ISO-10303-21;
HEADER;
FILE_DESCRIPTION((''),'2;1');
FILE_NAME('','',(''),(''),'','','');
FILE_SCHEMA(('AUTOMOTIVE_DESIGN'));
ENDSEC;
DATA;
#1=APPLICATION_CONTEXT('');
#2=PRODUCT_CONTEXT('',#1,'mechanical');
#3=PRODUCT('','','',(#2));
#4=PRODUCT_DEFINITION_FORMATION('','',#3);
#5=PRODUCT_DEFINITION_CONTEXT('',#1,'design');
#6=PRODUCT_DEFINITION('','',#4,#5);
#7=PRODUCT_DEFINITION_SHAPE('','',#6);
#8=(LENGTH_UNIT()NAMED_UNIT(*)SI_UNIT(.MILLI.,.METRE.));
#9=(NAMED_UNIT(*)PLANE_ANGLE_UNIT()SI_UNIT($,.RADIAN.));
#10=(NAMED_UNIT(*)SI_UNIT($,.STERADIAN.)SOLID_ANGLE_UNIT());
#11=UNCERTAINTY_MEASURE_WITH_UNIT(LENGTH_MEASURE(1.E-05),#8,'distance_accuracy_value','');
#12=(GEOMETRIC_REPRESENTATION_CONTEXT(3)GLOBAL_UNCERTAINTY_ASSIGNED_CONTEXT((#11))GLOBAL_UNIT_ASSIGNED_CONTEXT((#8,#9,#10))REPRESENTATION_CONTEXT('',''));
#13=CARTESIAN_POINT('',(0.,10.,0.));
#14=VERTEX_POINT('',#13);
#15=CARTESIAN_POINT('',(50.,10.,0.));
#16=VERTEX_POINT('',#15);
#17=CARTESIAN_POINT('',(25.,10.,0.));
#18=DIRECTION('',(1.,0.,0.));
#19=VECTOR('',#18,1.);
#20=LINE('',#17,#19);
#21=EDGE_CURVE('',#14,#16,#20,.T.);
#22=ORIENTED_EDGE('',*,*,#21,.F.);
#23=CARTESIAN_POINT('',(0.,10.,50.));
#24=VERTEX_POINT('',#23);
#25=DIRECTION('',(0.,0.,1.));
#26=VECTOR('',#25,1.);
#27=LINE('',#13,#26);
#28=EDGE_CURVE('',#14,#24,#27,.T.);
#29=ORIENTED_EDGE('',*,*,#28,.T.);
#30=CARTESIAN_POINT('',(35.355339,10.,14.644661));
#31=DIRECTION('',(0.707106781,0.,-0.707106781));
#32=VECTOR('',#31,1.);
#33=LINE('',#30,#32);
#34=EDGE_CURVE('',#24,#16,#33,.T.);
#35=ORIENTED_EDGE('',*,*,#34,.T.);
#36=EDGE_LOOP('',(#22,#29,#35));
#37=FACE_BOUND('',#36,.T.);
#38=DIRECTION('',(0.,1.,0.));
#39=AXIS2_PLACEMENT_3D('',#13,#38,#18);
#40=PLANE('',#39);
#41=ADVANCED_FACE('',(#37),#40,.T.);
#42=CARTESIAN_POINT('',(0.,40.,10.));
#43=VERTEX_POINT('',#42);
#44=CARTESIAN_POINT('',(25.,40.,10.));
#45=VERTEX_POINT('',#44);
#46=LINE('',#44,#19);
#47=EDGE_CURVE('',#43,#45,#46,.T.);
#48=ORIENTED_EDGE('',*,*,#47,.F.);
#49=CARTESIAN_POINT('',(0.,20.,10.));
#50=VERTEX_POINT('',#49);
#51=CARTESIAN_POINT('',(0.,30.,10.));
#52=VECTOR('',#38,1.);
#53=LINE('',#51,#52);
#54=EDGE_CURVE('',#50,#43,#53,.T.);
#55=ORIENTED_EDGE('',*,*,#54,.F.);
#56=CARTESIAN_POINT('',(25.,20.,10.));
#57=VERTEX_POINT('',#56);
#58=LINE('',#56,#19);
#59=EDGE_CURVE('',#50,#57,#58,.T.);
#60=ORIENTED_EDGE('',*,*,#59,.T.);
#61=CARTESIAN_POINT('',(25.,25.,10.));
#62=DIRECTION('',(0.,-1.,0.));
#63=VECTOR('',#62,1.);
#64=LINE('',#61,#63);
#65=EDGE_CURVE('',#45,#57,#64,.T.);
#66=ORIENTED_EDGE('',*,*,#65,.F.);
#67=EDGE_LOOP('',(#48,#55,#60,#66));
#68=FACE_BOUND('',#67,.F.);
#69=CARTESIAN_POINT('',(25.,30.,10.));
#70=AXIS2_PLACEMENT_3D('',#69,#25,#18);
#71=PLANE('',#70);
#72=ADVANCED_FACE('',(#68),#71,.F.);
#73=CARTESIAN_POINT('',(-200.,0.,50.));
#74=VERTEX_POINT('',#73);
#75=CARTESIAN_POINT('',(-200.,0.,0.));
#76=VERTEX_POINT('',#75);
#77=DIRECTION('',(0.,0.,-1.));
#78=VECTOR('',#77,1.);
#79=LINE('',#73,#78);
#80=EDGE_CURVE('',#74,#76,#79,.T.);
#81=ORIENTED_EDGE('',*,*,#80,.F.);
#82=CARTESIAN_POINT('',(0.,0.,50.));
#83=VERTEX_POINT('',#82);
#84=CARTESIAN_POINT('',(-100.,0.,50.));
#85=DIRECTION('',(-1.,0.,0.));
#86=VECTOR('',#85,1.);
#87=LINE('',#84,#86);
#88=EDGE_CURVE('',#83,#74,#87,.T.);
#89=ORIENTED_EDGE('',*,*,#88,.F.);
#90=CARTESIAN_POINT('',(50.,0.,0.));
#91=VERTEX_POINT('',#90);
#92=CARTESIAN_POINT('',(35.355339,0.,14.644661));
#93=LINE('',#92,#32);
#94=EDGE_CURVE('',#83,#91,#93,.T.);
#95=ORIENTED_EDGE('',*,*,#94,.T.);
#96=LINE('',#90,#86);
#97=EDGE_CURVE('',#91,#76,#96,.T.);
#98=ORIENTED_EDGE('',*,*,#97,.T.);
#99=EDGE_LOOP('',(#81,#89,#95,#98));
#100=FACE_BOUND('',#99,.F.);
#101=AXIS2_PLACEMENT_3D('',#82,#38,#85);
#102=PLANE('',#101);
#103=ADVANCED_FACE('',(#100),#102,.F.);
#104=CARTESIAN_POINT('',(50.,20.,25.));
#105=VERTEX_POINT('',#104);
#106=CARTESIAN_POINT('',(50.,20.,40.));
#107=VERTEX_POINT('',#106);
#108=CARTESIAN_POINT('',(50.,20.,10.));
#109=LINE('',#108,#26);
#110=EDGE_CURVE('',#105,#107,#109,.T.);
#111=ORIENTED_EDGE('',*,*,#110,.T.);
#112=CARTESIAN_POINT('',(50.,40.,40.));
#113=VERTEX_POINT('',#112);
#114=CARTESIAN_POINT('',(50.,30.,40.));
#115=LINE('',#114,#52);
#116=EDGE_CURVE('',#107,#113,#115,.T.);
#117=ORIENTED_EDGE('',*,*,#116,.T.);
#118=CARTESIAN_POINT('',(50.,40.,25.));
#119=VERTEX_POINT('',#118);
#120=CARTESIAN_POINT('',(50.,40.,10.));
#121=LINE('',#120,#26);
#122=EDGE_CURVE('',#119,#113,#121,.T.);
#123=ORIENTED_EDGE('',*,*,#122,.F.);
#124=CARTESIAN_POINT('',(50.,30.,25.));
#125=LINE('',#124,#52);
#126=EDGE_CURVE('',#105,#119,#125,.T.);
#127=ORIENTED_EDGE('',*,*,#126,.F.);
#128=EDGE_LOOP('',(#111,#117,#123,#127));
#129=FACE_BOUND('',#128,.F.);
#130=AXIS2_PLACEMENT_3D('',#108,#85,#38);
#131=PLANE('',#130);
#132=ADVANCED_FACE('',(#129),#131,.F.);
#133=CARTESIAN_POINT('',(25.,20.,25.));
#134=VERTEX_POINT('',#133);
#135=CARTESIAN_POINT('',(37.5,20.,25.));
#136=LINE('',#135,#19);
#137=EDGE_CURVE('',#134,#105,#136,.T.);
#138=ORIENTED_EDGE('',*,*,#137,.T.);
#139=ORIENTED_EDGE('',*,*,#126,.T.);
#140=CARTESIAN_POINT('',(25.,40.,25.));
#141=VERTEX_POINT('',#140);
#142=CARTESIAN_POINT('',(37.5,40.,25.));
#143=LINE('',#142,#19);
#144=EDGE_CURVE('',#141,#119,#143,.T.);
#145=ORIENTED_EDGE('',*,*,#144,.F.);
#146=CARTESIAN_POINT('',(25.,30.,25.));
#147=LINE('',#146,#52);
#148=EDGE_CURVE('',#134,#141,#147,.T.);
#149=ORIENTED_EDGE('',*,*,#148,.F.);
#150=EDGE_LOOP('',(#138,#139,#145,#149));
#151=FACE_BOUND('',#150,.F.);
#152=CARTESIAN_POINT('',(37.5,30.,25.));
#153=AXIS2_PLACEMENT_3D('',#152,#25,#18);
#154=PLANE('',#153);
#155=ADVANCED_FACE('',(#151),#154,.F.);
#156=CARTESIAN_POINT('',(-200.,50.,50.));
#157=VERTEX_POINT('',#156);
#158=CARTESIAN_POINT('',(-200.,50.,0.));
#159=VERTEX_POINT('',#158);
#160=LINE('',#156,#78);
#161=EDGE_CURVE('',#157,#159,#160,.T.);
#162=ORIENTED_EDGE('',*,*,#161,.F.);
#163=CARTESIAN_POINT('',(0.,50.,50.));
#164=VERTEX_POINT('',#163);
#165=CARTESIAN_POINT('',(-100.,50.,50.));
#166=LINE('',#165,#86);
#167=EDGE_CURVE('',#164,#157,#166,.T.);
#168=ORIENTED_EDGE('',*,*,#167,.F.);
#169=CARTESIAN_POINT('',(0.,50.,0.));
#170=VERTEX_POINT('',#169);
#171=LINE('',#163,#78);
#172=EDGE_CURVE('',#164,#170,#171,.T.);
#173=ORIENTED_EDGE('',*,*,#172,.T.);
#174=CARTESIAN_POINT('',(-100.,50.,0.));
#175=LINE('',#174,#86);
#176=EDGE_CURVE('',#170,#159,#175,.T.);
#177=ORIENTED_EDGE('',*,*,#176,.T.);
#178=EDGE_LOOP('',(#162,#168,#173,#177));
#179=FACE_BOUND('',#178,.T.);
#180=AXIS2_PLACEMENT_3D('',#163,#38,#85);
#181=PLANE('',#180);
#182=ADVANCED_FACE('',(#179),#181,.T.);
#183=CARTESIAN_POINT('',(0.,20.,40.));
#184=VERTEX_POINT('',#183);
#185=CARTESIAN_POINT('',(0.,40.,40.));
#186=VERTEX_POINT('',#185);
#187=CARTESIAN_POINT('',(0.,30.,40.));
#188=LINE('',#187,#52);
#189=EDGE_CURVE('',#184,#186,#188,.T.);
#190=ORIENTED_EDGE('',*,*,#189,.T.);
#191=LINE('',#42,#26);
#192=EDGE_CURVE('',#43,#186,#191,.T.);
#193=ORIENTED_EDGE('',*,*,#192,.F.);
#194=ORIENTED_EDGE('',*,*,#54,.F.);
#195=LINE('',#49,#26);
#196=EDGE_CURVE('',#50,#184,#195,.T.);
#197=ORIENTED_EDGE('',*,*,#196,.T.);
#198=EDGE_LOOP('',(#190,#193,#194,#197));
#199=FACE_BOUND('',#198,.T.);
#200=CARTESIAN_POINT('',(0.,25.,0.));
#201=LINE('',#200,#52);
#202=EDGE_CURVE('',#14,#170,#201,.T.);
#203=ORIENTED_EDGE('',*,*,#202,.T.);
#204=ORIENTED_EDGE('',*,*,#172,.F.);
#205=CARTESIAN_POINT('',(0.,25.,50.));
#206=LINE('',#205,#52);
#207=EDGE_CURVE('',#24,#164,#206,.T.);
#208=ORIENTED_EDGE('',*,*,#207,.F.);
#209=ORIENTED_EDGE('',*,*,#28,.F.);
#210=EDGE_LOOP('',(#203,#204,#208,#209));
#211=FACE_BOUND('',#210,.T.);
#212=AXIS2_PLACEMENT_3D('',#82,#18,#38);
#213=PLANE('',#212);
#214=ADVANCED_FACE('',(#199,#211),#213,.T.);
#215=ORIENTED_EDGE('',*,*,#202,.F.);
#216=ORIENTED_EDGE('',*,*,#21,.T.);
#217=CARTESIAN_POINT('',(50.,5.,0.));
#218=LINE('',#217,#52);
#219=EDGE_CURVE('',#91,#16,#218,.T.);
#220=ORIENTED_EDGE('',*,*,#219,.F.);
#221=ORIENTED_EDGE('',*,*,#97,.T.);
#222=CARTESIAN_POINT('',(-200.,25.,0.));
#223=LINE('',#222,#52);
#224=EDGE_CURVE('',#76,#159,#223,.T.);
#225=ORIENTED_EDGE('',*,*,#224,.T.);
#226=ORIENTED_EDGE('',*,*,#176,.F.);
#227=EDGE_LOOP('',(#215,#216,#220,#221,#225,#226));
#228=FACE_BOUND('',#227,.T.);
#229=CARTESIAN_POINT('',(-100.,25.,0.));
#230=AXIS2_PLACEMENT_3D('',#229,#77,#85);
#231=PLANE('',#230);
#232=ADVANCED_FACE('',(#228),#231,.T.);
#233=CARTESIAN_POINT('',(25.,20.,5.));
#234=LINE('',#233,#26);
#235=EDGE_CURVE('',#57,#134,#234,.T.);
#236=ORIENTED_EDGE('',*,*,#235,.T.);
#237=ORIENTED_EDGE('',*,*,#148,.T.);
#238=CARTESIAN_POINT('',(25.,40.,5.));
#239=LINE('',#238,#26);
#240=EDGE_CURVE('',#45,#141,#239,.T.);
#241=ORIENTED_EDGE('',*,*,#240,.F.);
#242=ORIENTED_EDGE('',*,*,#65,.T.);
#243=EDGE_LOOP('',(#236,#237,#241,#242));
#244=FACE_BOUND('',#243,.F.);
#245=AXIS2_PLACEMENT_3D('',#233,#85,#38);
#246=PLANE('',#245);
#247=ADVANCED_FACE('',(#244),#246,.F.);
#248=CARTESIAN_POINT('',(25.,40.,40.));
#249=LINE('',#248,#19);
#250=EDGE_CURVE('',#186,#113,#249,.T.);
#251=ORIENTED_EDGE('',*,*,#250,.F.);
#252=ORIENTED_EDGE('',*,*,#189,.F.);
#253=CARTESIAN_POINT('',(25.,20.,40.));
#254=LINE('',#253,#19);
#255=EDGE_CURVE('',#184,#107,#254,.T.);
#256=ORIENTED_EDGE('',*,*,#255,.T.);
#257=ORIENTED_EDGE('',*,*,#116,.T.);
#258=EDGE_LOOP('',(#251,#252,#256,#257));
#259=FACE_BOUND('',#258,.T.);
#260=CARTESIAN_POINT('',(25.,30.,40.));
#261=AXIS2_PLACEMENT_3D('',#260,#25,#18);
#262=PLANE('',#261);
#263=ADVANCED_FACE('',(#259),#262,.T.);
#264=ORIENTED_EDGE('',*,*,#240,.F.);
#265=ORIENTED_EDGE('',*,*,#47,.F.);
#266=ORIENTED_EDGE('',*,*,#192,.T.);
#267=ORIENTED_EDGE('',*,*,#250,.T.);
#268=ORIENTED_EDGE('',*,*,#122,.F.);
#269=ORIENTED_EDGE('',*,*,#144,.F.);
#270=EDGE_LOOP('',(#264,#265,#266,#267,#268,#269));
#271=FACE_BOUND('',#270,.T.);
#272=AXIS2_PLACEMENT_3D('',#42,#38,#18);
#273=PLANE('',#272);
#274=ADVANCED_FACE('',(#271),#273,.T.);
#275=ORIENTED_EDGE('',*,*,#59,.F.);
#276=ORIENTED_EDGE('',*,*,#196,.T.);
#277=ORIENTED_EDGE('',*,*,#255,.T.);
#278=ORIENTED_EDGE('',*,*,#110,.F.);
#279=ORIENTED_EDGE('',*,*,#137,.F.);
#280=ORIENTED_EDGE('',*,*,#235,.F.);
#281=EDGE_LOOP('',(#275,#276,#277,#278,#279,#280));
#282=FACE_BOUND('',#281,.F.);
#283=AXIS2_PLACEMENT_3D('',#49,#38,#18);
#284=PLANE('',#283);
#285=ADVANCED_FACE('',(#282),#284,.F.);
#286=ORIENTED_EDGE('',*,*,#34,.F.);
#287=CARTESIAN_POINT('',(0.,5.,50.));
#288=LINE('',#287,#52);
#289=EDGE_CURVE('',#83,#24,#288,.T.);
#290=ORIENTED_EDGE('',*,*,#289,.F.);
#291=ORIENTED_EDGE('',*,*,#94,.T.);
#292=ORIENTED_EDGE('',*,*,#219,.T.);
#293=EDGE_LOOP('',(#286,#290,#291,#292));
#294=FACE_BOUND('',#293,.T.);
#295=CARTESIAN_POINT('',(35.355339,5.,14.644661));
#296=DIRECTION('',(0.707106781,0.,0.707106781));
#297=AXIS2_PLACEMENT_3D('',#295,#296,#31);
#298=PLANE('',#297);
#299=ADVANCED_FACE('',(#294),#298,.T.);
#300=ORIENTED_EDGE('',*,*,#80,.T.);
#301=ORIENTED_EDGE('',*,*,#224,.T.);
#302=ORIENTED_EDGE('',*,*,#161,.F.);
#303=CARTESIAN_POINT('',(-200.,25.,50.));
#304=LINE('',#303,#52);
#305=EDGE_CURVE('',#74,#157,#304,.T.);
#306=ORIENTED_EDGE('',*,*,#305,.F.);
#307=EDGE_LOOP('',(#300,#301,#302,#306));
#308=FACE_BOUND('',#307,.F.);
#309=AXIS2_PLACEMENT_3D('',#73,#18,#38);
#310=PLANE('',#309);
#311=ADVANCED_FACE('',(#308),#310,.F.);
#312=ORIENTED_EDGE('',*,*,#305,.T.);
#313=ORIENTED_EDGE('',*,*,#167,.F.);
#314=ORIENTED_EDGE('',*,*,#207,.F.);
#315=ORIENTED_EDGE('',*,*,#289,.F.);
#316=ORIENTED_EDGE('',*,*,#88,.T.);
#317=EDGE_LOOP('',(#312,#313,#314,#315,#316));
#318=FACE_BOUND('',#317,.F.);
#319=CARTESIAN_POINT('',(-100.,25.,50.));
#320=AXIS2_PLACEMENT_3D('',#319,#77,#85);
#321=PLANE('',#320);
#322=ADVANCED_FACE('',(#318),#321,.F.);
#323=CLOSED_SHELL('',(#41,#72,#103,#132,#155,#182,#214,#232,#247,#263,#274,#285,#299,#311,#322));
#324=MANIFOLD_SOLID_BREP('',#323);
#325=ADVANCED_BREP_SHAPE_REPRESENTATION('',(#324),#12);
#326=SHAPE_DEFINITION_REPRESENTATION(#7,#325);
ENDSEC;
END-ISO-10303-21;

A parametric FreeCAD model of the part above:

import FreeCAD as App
import Part
import Sketcher
Q = App.Units.Quantity

doc = App.newDocument("Part")
body = doc.addObject("PartDesign::Body", "Body")

sketch1 = doc.addObject("Sketcher::SketchObject", "Sketch")
body.addObject(sketch1)
sketch1.AttachmentSupport = (doc.XY_Plane, [""])
sketch1.MapMode = "FlatFace"
sketch1.AttachmentOffset = App.Placement(App.Vector(0, 0, 5), App.Rotation())
sketch1.addGeometry(Part.LineSegment(App.Vector(25, 40, 0), App.Vector(25, 20, 0)), False)
sketch1.addGeometry(Part.LineSegment(App.Vector(25, 20, 0), App.Vector(50, 20, 0)), False)
sketch1.addGeometry(Part.LineSegment(App.Vector(50, 20, 0), App.Vector(50, 40, 0)), False)
sketch1.addGeometry(Part.LineSegment(App.Vector(50, 40, 0), App.Vector(25, 40, 0)), False)
sketch1.addConstraint(Sketcher.Constraint("Coincident", 0, 2, 1, 1))
sketch1.addConstraint(Sketcher.Constraint("Coincident", 1, 2, 2, 1))
sketch1.addConstraint(Sketcher.Constraint("Coincident", 2, 2, 3, 1))
sketch1.addConstraint(Sketcher.Constraint("Coincident", 3, 2, 0, 1))
sketch1.addConstraint(Sketcher.Constraint("Vertical", 0))
sketch1.addConstraint(Sketcher.Constraint("Horizontal", 1))
sketch1.addConstraint(Sketcher.Constraint("Vertical", 2))
sketch1.addConstraint(Sketcher.Constraint("Horizontal", 3))
sketch1.addConstraint(Sketcher.Constraint("DistanceX", 1, 1, 1, 2, Q("25 mm")))
sketch1.addConstraint(Sketcher.Constraint("DistanceY", 0, 2, 0, 1, Q("20 mm")))
sketch1.addConstraint(Sketcher.Constraint("DistanceX", -1, 1, 0, 2, Q("25 mm")))
sketch1.addConstraint(Sketcher.Constraint("DistanceY", -1, 1, 0, 2, Q("20 mm")))
pad1 = doc.addObject("PartDesign::Pad", "Pad")
body.addObject(pad1)
pad1.Profile = sketch1
pad1.Length = 20
body2 = doc.addObject("PartDesign::Body", "Body001")

sketch2 = doc.addObject("Sketcher::SketchObject", "Sketch001")
body2.addObject(sketch2)
sketch2.AttachmentSupport = (doc.getObject("XY_Plane001"), [""])
sketch2.MapMode = "FlatFace"
sketch2.AttachmentOffset = App.Placement(App.Vector(0, 0, 50), App.Rotation())
sketch2.addGeometry(Part.LineSegment(App.Vector(0, 50, 0), App.Vector(0, 0, 0)), False)
sketch2.addGeometry(Part.LineSegment(App.Vector(0, 0, 0), App.Vector(-200, 0, 0)), False)
sketch2.addGeometry(Part.LineSegment(App.Vector(-200, 0, 0), App.Vector(-200, 50, 0)), False)
sketch2.addGeometry(Part.LineSegment(App.Vector(-200, 50, 0), App.Vector(0, 50, 0)), False)
sketch2.addConstraint(Sketcher.Constraint("Coincident", 0, 2, 1, 1))
sketch2.addConstraint(Sketcher.Constraint("Coincident", 1, 2, 2, 1))
sketch2.addConstraint(Sketcher.Constraint("Coincident", 2, 2, 3, 1))
sketch2.addConstraint(Sketcher.Constraint("Coincident", 3, 2, 0, 1))
sketch2.addConstraint(Sketcher.Constraint("Vertical", 0))
sketch2.addConstraint(Sketcher.Constraint("Horizontal", 1))
sketch2.addConstraint(Sketcher.Constraint("Vertical", 2))
sketch2.addConstraint(Sketcher.Constraint("Horizontal", 3))
sketch2.addConstraint(Sketcher.Constraint("Coincident", 0, 2, -1, 1))
sketch2.addConstraint(Sketcher.Constraint("DistanceX", 1, 2, 1, 1, Q("200 mm")))
sketch2.addConstraint(Sketcher.Constraint("DistanceY", 0, 2, 0, 1, Q("50 mm")))
pad2 = doc.addObject("PartDesign::Pad", "Pad001")
body2.addObject(pad2)
pad2.Profile = sketch2
pad2.Length = 50
pad2.Reversed = True
body3 = doc.addObject("PartDesign::Body", "Body002")

sketch3 = doc.addObject("Sketcher::SketchObject", "Sketch002")
body3.addObject(sketch3)
sketch3.AttachmentSupport = (doc.getObject("XY_Plane002"), [""])
sketch3.MapMode = "FlatFace"
sketch3.AttachmentOffset = App.Placement(App.Vector(0, 0, 10), App.Rotation())
sketch3.addGeometry(Part.LineSegment(App.Vector(0, 40, 0), App.Vector(0, 20, 0)), False)
sketch3.addGeometry(Part.LineSegment(App.Vector(0, 20, 0), App.Vector(50, 20, 0)), False)
sketch3.addGeometry(Part.LineSegment(App.Vector(50, 20, 0), App.Vector(50, 40, 0)), False)
sketch3.addGeometry(Part.LineSegment(App.Vector(50, 40, 0), App.Vector(0, 40, 0)), False)
sketch3.addConstraint(Sketcher.Constraint("Coincident", 0, 2, 1, 1))
sketch3.addConstraint(Sketcher.Constraint("Coincident", 1, 2, 2, 1))
sketch3.addConstraint(Sketcher.Constraint("Coincident", 2, 2, 3, 1))
sketch3.addConstraint(Sketcher.Constraint("Coincident", 3, 2, 0, 1))
sketch3.addConstraint(Sketcher.Constraint("Vertical", 0))
sketch3.addConstraint(Sketcher.Constraint("Horizontal", 1))
sketch3.addConstraint(Sketcher.Constraint("Vertical", 2))
sketch3.addConstraint(Sketcher.Constraint("Horizontal", 3))
sketch3.addConstraint(Sketcher.Constraint("PointOnObject", 0, 2, -2))
sketch3.addConstraint(Sketcher.Constraint("DistanceX", 1, 1, 1, 2, Q("50 mm")))
sketch3.addConstraint(Sketcher.Constraint("DistanceY", 0, 2, 0, 1, Q("20 mm")))
sketch3.addConstraint(Sketcher.Constraint("DistanceY", -1, 1, 0, 2, Q("20 mm")))
pad3 = doc.addObject("PartDesign::Pad", "Pad002")
body3.addObject(pad3)
pad3.Profile = sketch3
pad3.Length = 30
body4 = doc.addObject("PartDesign::Body", "Body003")

sketch4 = doc.addObject("Sketcher::SketchObject", "Sketch003")
body4.addObject(sketch4)
sketch4.AttachmentSupport = (doc.getObject("XY_Plane003"), [""])
sketch4.MapMode = "FlatFace"
sketch4.addGeometry(Part.LineSegment(App.Vector(0, 10, 0), App.Vector(0, 0, 0)), False)
sketch4.addGeometry(Part.LineSegment(App.Vector(0, 0, 0), App.Vector(100, 0, 0)), False)
sketch4.addGeometry(Part.LineSegment(App.Vector(100, 0, 0), App.Vector(100, 10, 0)), False)
sketch4.addGeometry(Part.LineSegment(App.Vector(100, 10, 0), App.Vector(0, 10, 0)), False)
sketch4.addConstraint(Sketcher.Constraint("Coincident", 0, 2, 1, 1))
sketch4.addConstraint(Sketcher.Constraint("Coincident", 1, 2, 2, 1))
sketch4.addConstraint(Sketcher.Constraint("Coincident", 2, 2, 3, 1))
sketch4.addConstraint(Sketcher.Constraint("Coincident", 3, 2, 0, 1))
sketch4.addConstraint(Sketcher.Constraint("Vertical", 0))
sketch4.addConstraint(Sketcher.Constraint("Horizontal", 1))
sketch4.addConstraint(Sketcher.Constraint("Vertical", 2))
sketch4.addConstraint(Sketcher.Constraint("Horizontal", 3))
sketch4.addConstraint(Sketcher.Constraint("Coincident", 0, 2, -1, 1))
sketch4.addConstraint(Sketcher.Constraint("DistanceX", 1, 1, 1, 2, Q("100 mm")))
sketch4.addConstraint(Sketcher.Constraint("DistanceY", 0, 2, 0, 1, Q("10 mm")))
pad4 = doc.addObject("PartDesign::Pad", "Pad003")
body4.addObject(pad4)
pad4.Profile = sketch4
pad4.Length = 100
body5 = doc.addObject("PartDesign::Body", "Body004")
doc.recompute()

body4.Placement = App.Placement(App.Vector(0, 0, 50), App.Rotation(App.Vector(0, 1, 0), 45))
boolean = doc.addObject("PartDesign::Boolean", "Boolean")
body5.addObject(boolean)
boolean.Type = "Fuse"
boolean.addObjects([body4])
body6 = doc.addObject("PartDesign::Body", "Body005")

sketch5 = doc.addObject("Sketcher::SketchObject", "Sketch004")
body6.addObject(sketch5)
sketch5.AttachmentSupport = (doc.getObject("XY_Plane005"), [""])
sketch5.MapMode = "FlatFace"
sketch5.addGeometry(Part.LineSegment(App.Vector(0, 10, 0), App.Vector(0, 0, 0)), False)
sketch5.addGeometry(Part.LineSegment(App.Vector(0, 0, 0), App.Vector(50, 0, 0)), False)
sketch5.addGeometry(Part.LineSegment(App.Vector(50, 0, 0), App.Vector(50, 10, 0)), False)
sketch5.addGeometry(Part.LineSegment(App.Vector(50, 10, 0), App.Vector(0, 10, 0)), False)
sketch5.addConstraint(Sketcher.Constraint("Coincident", 0, 2, 1, 1))
sketch5.addConstraint(Sketcher.Constraint("Coincident", 1, 2, 2, 1))
sketch5.addConstraint(Sketcher.Constraint("Coincident", 2, 2, 3, 1))
sketch5.addConstraint(Sketcher.Constraint("Coincident", 3, 2, 0, 1))
sketch5.addConstraint(Sketcher.Constraint("Vertical", 0))
sketch5.addConstraint(Sketcher.Constraint("Horizontal", 1))
sketch5.addConstraint(Sketcher.Constraint("Vertical", 2))
sketch5.addConstraint(Sketcher.Constraint("Horizontal", 3))
sketch5.addConstraint(Sketcher.Constraint("Coincident", 0, 2, -1, 1))
sketch5.addConstraint(Sketcher.Constraint("DistanceX", 1, 1, 1, 2, Q("50 mm")))
sketch5.addConstraint(Sketcher.Constraint("DistanceY", 0, 2, 0, 1, Q("10 mm")))
pad5 = doc.addObject("PartDesign::Pad", "Pad004")
body6.addObject(pad5)
pad5.Profile = sketch5
pad5.Length = 50
doc.recompute()

boolean2 = doc.addObject("PartDesign::Boolean", "Boolean001")
body6.addObject(boolean2)
boolean2.Type = "Cut"
boolean2.addObjects([body5])
doc.recompute()

boolean3 = doc.addObject("PartDesign::Boolean", "Boolean002")
body6.addObject(boolean3)
boolean3.Type = "Fuse"
boolean3.addObjects([body2])
doc.recompute()

boolean4 = doc.addObject("PartDesign::Boolean", "Boolean003")
body6.addObject(boolean4)
boolean4.Type = "Fuse"
boolean4.addObjects([body3])
doc.recompute()

boolean5 = doc.addObject("PartDesign::Boolean", "Boolean004")
body6.addObject(boolean5)
boolean5.Type = "Cut"
boolean5.addObjects([body])

doc.recompute()
